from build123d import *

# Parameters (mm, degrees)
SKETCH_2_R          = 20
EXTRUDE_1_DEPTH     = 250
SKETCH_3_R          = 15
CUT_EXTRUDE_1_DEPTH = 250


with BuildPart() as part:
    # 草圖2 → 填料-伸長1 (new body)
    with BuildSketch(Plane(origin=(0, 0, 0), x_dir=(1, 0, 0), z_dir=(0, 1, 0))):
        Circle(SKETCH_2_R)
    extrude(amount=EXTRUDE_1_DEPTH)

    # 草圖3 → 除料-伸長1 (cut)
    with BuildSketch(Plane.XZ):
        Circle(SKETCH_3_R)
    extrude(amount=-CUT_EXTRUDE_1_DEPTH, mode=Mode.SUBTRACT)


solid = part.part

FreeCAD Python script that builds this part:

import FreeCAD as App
import Part
import Sketcher

doc = App.newDocument("Part")
body = doc.addObject("PartDesign::Body", "Body")

# Sketch on XZ plane
sketch1 = body.newObject("Sketcher::SketchObject", "Sketch")
sketch1.AttachmentSupport = (doc.getObject("XZ_Plane"), [""])
sketch1.MapMode = "FlatFace"
sketch1.addGeometry(Part.Circle(App.Vector(0, 0, 0), App.Vector(0, 0, 1), 20), False)
sketch1.addConstraint([
    Sketcher.Constraint("Coincident", 0, 3, -1, 1),
    Sketcher.Constraint("Diameter", 0, 40.0),
])
pad1 = body.newObject("PartDesign::Pad", "Pad")
pad1.Profile = sketch1
pad1.Length = 250
pad1.Reversed = True

# Sketch on XZ plane
sketch2 = body.newObject("Sketcher::SketchObject", "Sketch001")
sketch2.AttachmentSupport = (doc.getObject("XZ_Plane"), [""])
sketch2.MapMode = "FlatFace"
sketch2.addGeometry(Part.Circle(App.Vector(0, 0, 0), App.Vector(0, 0, 1), 15), False)
sketch2.addConstraint([
    Sketcher.Constraint("Coincident", 0, 3, -1, 1),
    Sketcher.Constraint("Diameter", 0, 30.0),
])
pocket1 = body.newObject("PartDesign::Pocket", "Pocket")
pocket1.Profile = sketch2
pocket1.Length = 250

doc.recompute()
